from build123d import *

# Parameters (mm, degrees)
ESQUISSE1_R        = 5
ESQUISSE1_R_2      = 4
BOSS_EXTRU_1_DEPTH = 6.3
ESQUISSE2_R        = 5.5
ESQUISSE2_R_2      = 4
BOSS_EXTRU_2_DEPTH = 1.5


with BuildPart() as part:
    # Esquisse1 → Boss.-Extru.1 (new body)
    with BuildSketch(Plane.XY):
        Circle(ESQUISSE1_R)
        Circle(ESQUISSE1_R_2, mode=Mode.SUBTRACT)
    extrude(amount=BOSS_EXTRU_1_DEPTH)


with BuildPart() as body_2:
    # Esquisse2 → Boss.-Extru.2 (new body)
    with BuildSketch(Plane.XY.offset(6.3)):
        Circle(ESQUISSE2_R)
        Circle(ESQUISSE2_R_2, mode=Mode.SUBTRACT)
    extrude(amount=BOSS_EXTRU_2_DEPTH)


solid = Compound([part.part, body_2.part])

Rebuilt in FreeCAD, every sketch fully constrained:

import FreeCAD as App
import Part
import Sketcher
from FreeCAD import Vector

doc = App.newDocument("Part")
body = doc.addObject("PartDesign::Body", "Body")

# Sketch on XY plane
sketch1 = body.newObject("Sketcher::SketchObject", "Sketch")
sketch1.AttachmentSupport = (doc.getObject("XY_Plane"), [""])
sketch1.MapMode = "FlatFace"
sketch1.addGeometry(Part.Circle(Vector(0, 0, 0), Vector(0, 0, 1), 5), False)
sketch1.addGeometry(Part.Circle(Vector(0, 0, 0), Vector(0, 0, 1), 4), False)
sketch1.addConstraint(Sketcher.Constraint("Coincident", 0, 3, -1, 1))
sketch1.addConstraint(Sketcher.Constraint("Coincident", 1, 3, -1, 1))
sketch1.addConstraint(Sketcher.Constraint("Diameter", 0, 10.0))
sketch1.addConstraint(Sketcher.Constraint("Diameter", 1, 8.0))
pad1 = body.newObject("PartDesign::Pad", "Pad")
pad1.Profile = sketch1
pad1.Length = 6.3
body2 = doc.addObject("PartDesign::Body", "Body001")

# Sketch on XY plane
sketch2 = body2.newObject("Sketcher::SketchObject", "Sketch001")
sketch2.AttachmentSupport = (doc.getObject("XY_Plane001"), [""])
sketch2.MapMode = "FlatFace"
sketch2.AttachmentOffset = App.Placement(Vector(0, 0, 6.3), App.Rotation())
sketch2.addGeometry(Part.Circle(Vector(0, 0, 0), Vector(0, 0, 1), 5.5), False)
sketch2.addGeometry(Part.Circle(Vector(0, 0, 0), Vector(0, 0, 1), 4), False)
sketch2.addConstraint(Sketcher.Constraint("Coincident", 0, 3, -1, 1))
sketch2.addConstraint(Sketcher.Constraint("Coincident", 1, 3, -1, 1))
sketch2.addConstraint(Sketcher.Constraint("Diameter", 0, 11.0))
sketch2.addConstraint(Sketcher.Constraint("Diameter", 1, 8.0))
pad2 = body2.newObject("PartDesign::Pad", "Pad001")
pad2.Profile = sketch2
pad2.Length = 1.5

doc.recompute()
